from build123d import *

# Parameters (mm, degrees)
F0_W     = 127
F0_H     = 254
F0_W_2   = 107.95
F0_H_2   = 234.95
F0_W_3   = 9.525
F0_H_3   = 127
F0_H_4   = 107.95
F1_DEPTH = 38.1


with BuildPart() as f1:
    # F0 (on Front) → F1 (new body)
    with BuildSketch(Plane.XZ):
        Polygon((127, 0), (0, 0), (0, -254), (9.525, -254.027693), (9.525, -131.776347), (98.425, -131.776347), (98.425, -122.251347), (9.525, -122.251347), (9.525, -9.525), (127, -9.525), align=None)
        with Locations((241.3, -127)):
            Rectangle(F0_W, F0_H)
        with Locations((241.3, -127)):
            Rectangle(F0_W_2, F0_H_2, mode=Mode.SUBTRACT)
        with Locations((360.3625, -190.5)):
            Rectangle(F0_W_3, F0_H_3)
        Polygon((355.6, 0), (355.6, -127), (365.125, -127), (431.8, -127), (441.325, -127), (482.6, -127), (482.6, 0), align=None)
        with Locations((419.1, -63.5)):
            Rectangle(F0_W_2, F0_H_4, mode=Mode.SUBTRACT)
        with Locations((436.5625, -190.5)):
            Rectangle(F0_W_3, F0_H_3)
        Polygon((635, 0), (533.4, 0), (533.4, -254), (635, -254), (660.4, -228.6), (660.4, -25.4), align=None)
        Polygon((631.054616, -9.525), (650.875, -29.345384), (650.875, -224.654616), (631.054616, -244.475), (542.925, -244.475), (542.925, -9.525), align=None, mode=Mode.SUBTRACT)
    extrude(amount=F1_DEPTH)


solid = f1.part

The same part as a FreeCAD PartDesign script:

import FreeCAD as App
import Part
import Sketcher

V = App.Vector
Q = App.Units.Quantity

doc = App.newDocument("Part")
body = doc.addObject("PartDesign::Body", "Body")
body.AllowCompound = True

# Sketch on XZ plane
sketch1 = body.newObject("Sketcher::SketchObject", "Sketch")
sketch1.AttachmentSupport = (doc.getObject("XZ_Plane"), [""])
sketch1.MapMode = "FlatFace"
sketch1.addGeometry(Part.LineSegment(V(127, 0, 0), V(0, 0, 0)), False)
sketch1.addGeometry(Part.LineSegment(V(0, 0, 0), V(0, -254, 0)), False)
sketch1.addGeometry(Part.LineSegment(V(0, -254, 0), V(9.525, -254.027693, 0)), False)
sketch1.addGeometry(Part.LineSegment(V(9.525, -254.027693, 0), V(9.525, -131.776347, 0)), False)
sketch1.addGeometry(Part.LineSegment(V(9.525, -131.776347, 0), V(98.425, -131.776347, 0)), False)
sketch1.addGeometry(Part.LineSegment(V(98.425, -131.776347, 0), V(98.425, -122.251347, 0)), False)
sketch1.addGeometry(Part.LineSegment(V(98.425, -122.251347, 0), V(9.525, -122.251347, 0)), False)
sketch1.addGeometry(Part.LineSegment(V(9.525, -122.251347, 0), V(9.525, -9.525, 0)), False)
sketch1.addGeometry(Part.LineSegment(V(9.525, -9.525, 0), V(127, -9.525, 0)), False)
sketch1.addGeometry(Part.LineSegment(V(127, -9.525, 0), V(127, 0, 0)), False)
sketch1.addGeometry(Part.LineSegment(V(177.8, 0, 0), V(177.8, -254, 0)), False)
sketch1.addGeometry(Part.LineSegment(V(177.8, -254, 0), V(304.8, -254, 0)), False)
sketch1.addGeometry(Part.LineSegment(V(304.8, -254, 0), V(304.8, 0, 0)), False)
sketch1.addGeometry(Part.LineSegment(V(304.8, 0, 0), V(177.8, 0, 0)), False)
sketch1.addGeometry(Part.LineSegment(V(295.275, -244.475, 0), V(187.325, -244.475, 0)), False)
sketch1.addGeometry(Part.LineSegment(V(187.325, -244.475, 0), V(187.325, -9.525, 0)), False)
sketch1.addGeometry(Part.LineSegment(V(187.325, -9.525, 0), V(295.275, -9.525, 0)), False)
sketch1.addGeometry(Part.LineSegment(V(295.275, -9.525, 0), V(295.275, -244.475, 0)), False)
sketch1.addGeometry(Part.LineSegment(V(355.6, -254, 0), V(365.125, -254, 0)), False)
sketch1.addGeometry(Part.LineSegment(V(365.125, -254, 0), V(365.125, -127, 0)), False)
sketch1.addGeometry(Part.LineSegment(V(365.125, -127, 0), V(431.8, -127, 0)), False)
sketch1.addGeometry(Part.LineSegment(V(431.8, -127, 0), V(431.8, -254, 0)), False)
sketch1.addGeometry(Part.LineSegment(V(431.8, -254, 0), V(441.325, -254, 0)), False)
sketch1.addGeometry(Part.LineSegment(V(441.325, -254, 0), V(441.325, -127, 0)), False)
sketch1.addGeometry(Part.LineSegment(V(441.325, -127, 0), V(482.6, -127, 0)), False)
sketch1.addGeometry(Part.LineSegment(V(482.6, -127, 0), V(482.6, 0, 0)), False)
sketch1.addGeometry(Part.LineSegment(V(482.6, 0, 0), V(355.6, 0, 0)), False)
sketch1.addGeometry(Part.LineSegment(V(355.6, 0, 0), V(355.6, -254, 0)), False)
sketch1.addGeometry(Part.LineSegment(V(473.075, -117.475, 0), V(365.125, -117.475, 0)), False)
sketch1.addGeometry(Part.LineSegment(V(365.125, -117.475, 0), V(365.125, -9.525, 0)), False)
sketch1.addGeometry(Part.LineSegment(V(365.125, -9.525, 0), V(473.075, -9.525, 0)), False)
sketch1.addGeometry(Part.LineSegment(V(473.075, -9.525, 0), V(473.075, -117.475, 0)), False)
sketch1.addGeometry(Part.LineSegment(V(635, 0, 0), V(533.4, 0, 0)), False)
sketch1.addGeometry(Part.LineSegment(V(533.4, 0, 0), V(533.4, -254, 0)), False)
sketch1.addGeometry(Part.LineSegment(V(533.4, -254, 0), V(635, -254, 0)), False)
sketch1.addGeometry(Part.LineSegment(V(635, -254, 0), V(660.4, -228.6, 0)), False)
sketch1.addGeometry(Part.LineSegment(V(660.4, -228.6, 0), V(660.4, -25.4, 0)), False)
sketch1.addGeometry(Part.LineSegment(V(660.4, -25.4, 0), V(635, 0, 0)), False)
sketch1.addGeometry(Part.LineSegment(V(542.925, -9.525, 0), V(631.054616, -9.525, 0)), False)
sketch1.addGeometry(Part.LineSegment(V(631.054616, -9.525, 0), V(650.875, -29.345384, 0)), False)
sketch1.addGeometry(Part.LineSegment(V(650.875, -29.345384, 0), V(650.875, -224.654616, 0)), False)
sketch1.addGeometry(Part.LineSegment(V(650.875, -224.654616, 0), V(631.054616, -244.475, 0)), False)
sketch1.addGeometry(Part.LineSegment(V(631.054616, -244.475, 0), V(542.925, -244.475, 0)), False)
sketch1.addGeometry(Part.LineSegment(V(542.925, -244.475, 0), V(542.925, -9.525, 0)), False)
sketch1.addConstraint(Sketcher.Constraint("Coincident", 0, 2, 1, 1))
sketch1.addConstraint(Sketcher.Constraint("Coincident", 1, 2, 2, 1))
sketch1.addConstraint(Sketcher.Constraint("Coincident", 2, 2, 3, 1))
sketch1.addConstraint(Sketcher.Constraint("Coincident", 3, 2, 4, 1))
sketch1.addConstraint(Sketcher.Constraint("Coincident", 4, 2, 5, 1))
sketch1.addConstraint(Sketcher.Constraint("Coincident", 5, 2, 6, 1))
sketch1.addConstraint(Sketcher.Constraint("Coincident", 6, 2, 7, 1))
sketch1.addConstraint(Sketcher.Constraint("Coincident", 7, 2, 8, 1))
sketch1.addConstraint(Sketcher.Constraint("Coincident", 8, 2, 9, 1))
sketch1.addConstraint(Sketcher.Constraint("Coincident", 9, 2, 0, 1))
sketch1.addConstraint(Sketcher.Constraint("Coincident", 10, 2, 11, 1))
sketch1.addConstraint(Sketcher.Constraint("Coincident", 11, 2, 12, 1))
sketch1.addConstraint(Sketcher.Constraint("Coincident", 12, 2, 13, 1))
sketch1.addConstraint(Sketcher.Constraint("Coincident", 13, 2, 10, 1))
sketch1.addConstraint(Sketcher.Constraint("Coincident", 14, 2, 15, 1))
sketch1.addConstraint(Sketcher.Constraint("Coincident", 15, 2, 16, 1))
sketch1.addConstraint(Sketcher.Constraint("Coincident", 16, 2, 17, 1))
sketch1.addConstraint(Sketcher.Constraint("Coincident", 17, 2, 14, 1))
sketch1.addConstraint(Sketcher.Constraint("Coincident", 18, 2, 19, 1))
sketch1.addConstraint(Sketcher.Constraint("Coincident", 19, 2, 20, 1))
sketch1.addConstraint(Sketcher.Constraint("Coincident", 20, 2, 21, 1))
sketch1.addConstraint(Sketcher.Constraint("Coincident", 21, 2, 22, 1))
sketch1.addConstraint(Sketcher.Constraint("Coincident", 22, 2, 23, 1))
sketch1.addConstraint(Sketcher.Constraint("Coincident", 23, 2, 24, 1))
sketch1.addConstraint(Sketcher.Constraint("Coincident", 24, 2, 25, 1))
sketch1.addConstraint(Sketcher.Constraint("Coincident", 25, 2, 26, 1))
sketch1.addConstraint(Sketcher.Constraint("Coincident", 26, 2, 27, 1))
sketch1.addConstraint(Sketcher.Constraint("Coincident", 27, 2, 18, 1))
sketch1.addConstraint(Sketcher.Constraint("Coincident", 28, 2, 29, 1))
sketch1.addConstraint(Sketcher.Constraint("Coincident", 29, 2, 30, 1))
sketch1.addConstraint(Sketcher.Constraint("Coincident", 30, 2, 31, 1))
sketch1.addConstraint(Sketcher.Constraint("Coincident", 31, 2, 28, 1))
sketch1.addConstraint(Sketcher.Constraint("Coincident", 32, 2, 33, 1))
sketch1.addConstraint(Sketcher.Constraint("Coincident", 33, 2, 34, 1))
sketch1.addConstraint(Sketcher.Constraint("Coincident", 34, 2, 35, 1))
sketch1.addConstraint(Sketcher.Constraint("Coincident", 35, 2, 36, 1))
sketch1.addConstraint(Sketcher.Constraint("Coincident", 36, 2, 37, 1))
sketch1.addConstraint(Sketcher.Constraint("Coincident", 37, 2, 32, 1))
sketch1.addConstraint(Sketcher.Constraint("Coincident", 38, 2, 39, 1))
sketch1.addConstraint(Sketcher.Constraint("Coincident", 39, 2, 40, 1))
sketch1.addConstraint(Sketcher.Constraint("Coincident", 40, 2, 41, 1))
sketch1.addConstraint(Sketcher.Constraint("Coincident", 41, 2, 42, 1))
sketch1.addConstraint(Sketcher.Constraint("Coincident", 42, 2, 43, 1))
sketch1.addConstraint(Sketcher.Constraint("Coincident", 43, 2, 38, 1))
sketch1.addConstraint(Sketcher.Constraint("Horizontal", 0))
sketch1.addConstraint(Sketcher.Constraint("Vertical", 1))
sketch1.addConstraint(Sketcher.Constraint("Vertical", 3))
sketch1.addConstraint(Sketcher.Constraint("Horizontal", 4))
sketch1.addConstraint(Sketcher.Constraint("Vertical", 5))
sketch1.addConstraint(Sketcher.Constraint("Horizontal", 6))
sketch1.addConstraint(Sketcher.Constraint("Vertical", 7))
sketch1.addConstraint(Sketcher.Constraint("Horizontal", 8))
sketch1.addConstraint(Sketcher.Constraint("Vertical", 9))
sketch1.addConstraint(Sketcher.Constraint("Vertical", 10))
sketch1.addConstraint(Sketcher.Constraint("Horizontal", 11))
sketch1.addConstraint(Sketcher.Constraint("Vertical", 12))
sketch1.addConstraint(Sketcher.Constraint("Horizontal", 13))
sketch1.addConstraint(Sketcher.Constraint("Horizontal", 14))
sketch1.addConstraint(Sketcher.Constraint("Vertical", 15))
sketch1.addConstraint(Sketcher.Constraint("Horizontal", 16))
sketch1.addConstraint(Sketcher.Constraint("Vertical", 17))
sketch1.addConstraint(Sketcher.Constraint("Horizontal", 18))
sketch1.addConstraint(Sketcher.Constraint("Vertical", 19))
sketch1.addConstraint(Sketcher.Constraint("Horizontal", 20))
sketch1.addConstraint(Sketcher.Constraint("Vertical", 21))
sketch1.addConstraint(Sketcher.Constraint("Horizontal", 22))
sketch1.addConstraint(Sketcher.Constraint("Vertical", 23))
sketch1.addConstraint(Sketcher.Constraint("Horizontal", 24))
sketch1.addConstraint(Sketcher.Constraint("Vertical", 25))
sketch1.addConstraint(Sketcher.Constraint("Horizontal", 26))
sketch1.addConstraint(Sketcher.Constraint("Vertical", 27))
sketch1.addConstraint(Sketcher.Constraint("Horizontal", 28))
sketch1.addConstraint(Sketcher.Constraint("Vertical", 29))
sketch1.addConstraint(Sketcher.Constraint("Horizontal", 30))
sketch1.addConstraint(Sketcher.Constraint("Vertical", 31))
sketch1.addConstraint(Sketcher.Constraint("Horizontal", 32))
sketch1.addConstraint(Sketcher.Constraint("Vertical", 33))
sketch1.addConstraint(Sketcher.Constraint("Horizontal", 34))
sketch1.addConstraint(Sketcher.Constraint("Vertical", 36))
sketch1.addConstraint(Sketcher.Constraint("Horizontal", 38))
sketch1.addConstraint(Sketcher.Constraint("Vertical", 40))
sketch1.addConstraint(Sketcher.Constraint("Horizontal", 42))
sketch1.addConstraint(Sketcher.Constraint("Vertical", 43))
sketch1.addConstraint(Sketcher.Constraint("Coincident", 0, 2, -1, 1))
sketch1.addConstraint(Sketcher.Constraint("PointOnObject", 12, 2, -1))
sketch1.addConstraint(Sketcher.Constraint("PointOnObject", 25, 2, -1))
sketch1.addConstraint(Sketcher.Constraint("PointOnObject", 32, 2, -1))
sketch1.addConstraint(Sketcher.Constraint("Perpendicular", 35, 37))
sketch1.addConstraint(Sketcher.Constraint("Parallel", 37, 39))
sketch1.addConstraint(Sketcher.Constraint("Perpendicular", 39, 41))
sketch1.addConstraint(Sketcher.Constraint("Horizontal", 1, 2, 10, 2))
sketch1.addConstraint(Sketcher.Constraint("Horizontal", 8, 2, 15, 2))
sketch1.addConstraint(Sketcher.Constraint("Horizontal", 11, 2, 18, 2))
sketch1.addConstraint(Sketcher.Constraint("Horizontal", 18, 2, 21, 2))
sketch1.addConstraint(Sketcher.Constraint("Horizontal", 20, 2, 23, 2))
sketch1.addConstraint(Sketcher.Constraint("Horizontal", 16, 2, 29, 2))
sketch1.addConstraint(Sketcher.Constraint("Horizontal", 27, 2, 33, 2))
sketch1.addConstraint(Sketcher.Constraint("Horizontal", 30, 2, 38, 2))
sketch1.addConstraint(Sketcher.Constraint("Horizontal", 17, 2, 41, 2))
sketch1.addConstraint(Sketcher.Constraint("Vertical", 3, 2, 6, 2))
sketch1.addConstraint(Sketcher.Constraint("Vertical", 19, 2, 28, 2))
sketch1.addConstraint(Sketcher.Constraint("Vertical", 34, 2, 37, 2))
sketch1.addConstraint(Sketcher.Constraint("Vertical", 38, 2, 41, 2))
sketch1.addConstraint(Sketcher.Constraint("Equal", 0, 11))
sketch1.addConstraint(Sketcher.Constraint("Equal", 18, 22))
sketch1.addConstraint(Sketcher.Constraint("Equal", 13, 26))
sketch1.addConstraint(Sketcher.Constraint("Equal", 16, 28))
sketch1.addConstraint(Sketcher.Constraint("Equal", 22, 5))
sketch1.addConstraint(Sketcher.Constraint("Equal", 5, 9))
sketch1.addConstraint(Sketcher.Constraint("Equal", 26, 19))
sketch1.addConstraint(Sketcher.Constraint("Equal", 23, 25))
sketch1.addConstraint(Sketcher.Constraint("Equal", 30, 29))
sketch1.addConstraint(Sketcher.Constraint("Equal", 35, 37))
sketch1.addConstraint(Sketcher.Constraint("DistanceX", 0, 2, 0, 1, Q("5 in")))
sketch1.addConstraint(Sketcher.Constraint("DistanceX", 32, 2, 32, 1, Q("4 in")))
sketch1.addConstraint(Sketcher.Constraint("DistanceY", 36, 1, 36, 2, Q("8 in")))
sketch1.addConstraint(Sketcher.Constraint("DistanceX", 4, 1, 4, 2, Q("3.5 in")))
sketch1.addConstraint(Sketcher.Constraint("DistanceX", -1, 1, 10, 2, Q("7 in")))
sketch1.addConstraint(Sketcher.Constraint("DistanceX", -1, 1, 20, 2, Q("17 in")))
sketch1.addConstraint(Sketcher.Constraint("DistanceX", -1, 1, 24, 2, Q("19 in")))
sketch1.addConstraint(Sketcher.Constraint("DistanceX", -1, 1, 32, 2, Q("21 in")))
sketch1.addConstraint(Sketcher.Constraint("DistanceX", 2, 2, 14, 2, Q("7 in")))
sketch1.addConstraint(Sketcher.Constraint("DistanceX", 14, 2, 18, 2, Q("7 in")))
sketch1.addConstraint(Sketcher.Constraint("DistanceX", 22, 2, 42, 2, Q("4 in")))
sketch1.addConstraint(Sketcher.Constraint("DistanceX", 14, 2, 14, 1, Q("4.25 in")))
sketch1.addConstraint(Sketcher.Constraint("DistanceY", 15, 1, 15, 2, Q("9.25 in")))
sketch1.addConstraint(Sketcher.Constraint("DistanceX", 8, 1, 8, 2, Q("4.625 in")))
sketch1.addConstraint(Sketcher.Constraint("DistanceX", 42, 2, 40, 2, Q("4.25 in")))
sketch1.addConstraint(Sketcher.Constraint("DistanceY", 40, 2, 40, 1, Q("195.309232 mm")))
sketch1.addConstraint(Sketcher.Constraint("DistanceY", 3, 1, 3, 2, Q("122.251346 mm")))
sketch1.addConstraint(Sketcher.Constraint("DistanceY", 7, 1, 7, 2, Q("112.726347 mm")))
pad1 = body.newObject("PartDesign::Pad", "Pad")
pad1.Profile = sketch1
pad1.Length = Q("1.5 in")

doc.recompute()
